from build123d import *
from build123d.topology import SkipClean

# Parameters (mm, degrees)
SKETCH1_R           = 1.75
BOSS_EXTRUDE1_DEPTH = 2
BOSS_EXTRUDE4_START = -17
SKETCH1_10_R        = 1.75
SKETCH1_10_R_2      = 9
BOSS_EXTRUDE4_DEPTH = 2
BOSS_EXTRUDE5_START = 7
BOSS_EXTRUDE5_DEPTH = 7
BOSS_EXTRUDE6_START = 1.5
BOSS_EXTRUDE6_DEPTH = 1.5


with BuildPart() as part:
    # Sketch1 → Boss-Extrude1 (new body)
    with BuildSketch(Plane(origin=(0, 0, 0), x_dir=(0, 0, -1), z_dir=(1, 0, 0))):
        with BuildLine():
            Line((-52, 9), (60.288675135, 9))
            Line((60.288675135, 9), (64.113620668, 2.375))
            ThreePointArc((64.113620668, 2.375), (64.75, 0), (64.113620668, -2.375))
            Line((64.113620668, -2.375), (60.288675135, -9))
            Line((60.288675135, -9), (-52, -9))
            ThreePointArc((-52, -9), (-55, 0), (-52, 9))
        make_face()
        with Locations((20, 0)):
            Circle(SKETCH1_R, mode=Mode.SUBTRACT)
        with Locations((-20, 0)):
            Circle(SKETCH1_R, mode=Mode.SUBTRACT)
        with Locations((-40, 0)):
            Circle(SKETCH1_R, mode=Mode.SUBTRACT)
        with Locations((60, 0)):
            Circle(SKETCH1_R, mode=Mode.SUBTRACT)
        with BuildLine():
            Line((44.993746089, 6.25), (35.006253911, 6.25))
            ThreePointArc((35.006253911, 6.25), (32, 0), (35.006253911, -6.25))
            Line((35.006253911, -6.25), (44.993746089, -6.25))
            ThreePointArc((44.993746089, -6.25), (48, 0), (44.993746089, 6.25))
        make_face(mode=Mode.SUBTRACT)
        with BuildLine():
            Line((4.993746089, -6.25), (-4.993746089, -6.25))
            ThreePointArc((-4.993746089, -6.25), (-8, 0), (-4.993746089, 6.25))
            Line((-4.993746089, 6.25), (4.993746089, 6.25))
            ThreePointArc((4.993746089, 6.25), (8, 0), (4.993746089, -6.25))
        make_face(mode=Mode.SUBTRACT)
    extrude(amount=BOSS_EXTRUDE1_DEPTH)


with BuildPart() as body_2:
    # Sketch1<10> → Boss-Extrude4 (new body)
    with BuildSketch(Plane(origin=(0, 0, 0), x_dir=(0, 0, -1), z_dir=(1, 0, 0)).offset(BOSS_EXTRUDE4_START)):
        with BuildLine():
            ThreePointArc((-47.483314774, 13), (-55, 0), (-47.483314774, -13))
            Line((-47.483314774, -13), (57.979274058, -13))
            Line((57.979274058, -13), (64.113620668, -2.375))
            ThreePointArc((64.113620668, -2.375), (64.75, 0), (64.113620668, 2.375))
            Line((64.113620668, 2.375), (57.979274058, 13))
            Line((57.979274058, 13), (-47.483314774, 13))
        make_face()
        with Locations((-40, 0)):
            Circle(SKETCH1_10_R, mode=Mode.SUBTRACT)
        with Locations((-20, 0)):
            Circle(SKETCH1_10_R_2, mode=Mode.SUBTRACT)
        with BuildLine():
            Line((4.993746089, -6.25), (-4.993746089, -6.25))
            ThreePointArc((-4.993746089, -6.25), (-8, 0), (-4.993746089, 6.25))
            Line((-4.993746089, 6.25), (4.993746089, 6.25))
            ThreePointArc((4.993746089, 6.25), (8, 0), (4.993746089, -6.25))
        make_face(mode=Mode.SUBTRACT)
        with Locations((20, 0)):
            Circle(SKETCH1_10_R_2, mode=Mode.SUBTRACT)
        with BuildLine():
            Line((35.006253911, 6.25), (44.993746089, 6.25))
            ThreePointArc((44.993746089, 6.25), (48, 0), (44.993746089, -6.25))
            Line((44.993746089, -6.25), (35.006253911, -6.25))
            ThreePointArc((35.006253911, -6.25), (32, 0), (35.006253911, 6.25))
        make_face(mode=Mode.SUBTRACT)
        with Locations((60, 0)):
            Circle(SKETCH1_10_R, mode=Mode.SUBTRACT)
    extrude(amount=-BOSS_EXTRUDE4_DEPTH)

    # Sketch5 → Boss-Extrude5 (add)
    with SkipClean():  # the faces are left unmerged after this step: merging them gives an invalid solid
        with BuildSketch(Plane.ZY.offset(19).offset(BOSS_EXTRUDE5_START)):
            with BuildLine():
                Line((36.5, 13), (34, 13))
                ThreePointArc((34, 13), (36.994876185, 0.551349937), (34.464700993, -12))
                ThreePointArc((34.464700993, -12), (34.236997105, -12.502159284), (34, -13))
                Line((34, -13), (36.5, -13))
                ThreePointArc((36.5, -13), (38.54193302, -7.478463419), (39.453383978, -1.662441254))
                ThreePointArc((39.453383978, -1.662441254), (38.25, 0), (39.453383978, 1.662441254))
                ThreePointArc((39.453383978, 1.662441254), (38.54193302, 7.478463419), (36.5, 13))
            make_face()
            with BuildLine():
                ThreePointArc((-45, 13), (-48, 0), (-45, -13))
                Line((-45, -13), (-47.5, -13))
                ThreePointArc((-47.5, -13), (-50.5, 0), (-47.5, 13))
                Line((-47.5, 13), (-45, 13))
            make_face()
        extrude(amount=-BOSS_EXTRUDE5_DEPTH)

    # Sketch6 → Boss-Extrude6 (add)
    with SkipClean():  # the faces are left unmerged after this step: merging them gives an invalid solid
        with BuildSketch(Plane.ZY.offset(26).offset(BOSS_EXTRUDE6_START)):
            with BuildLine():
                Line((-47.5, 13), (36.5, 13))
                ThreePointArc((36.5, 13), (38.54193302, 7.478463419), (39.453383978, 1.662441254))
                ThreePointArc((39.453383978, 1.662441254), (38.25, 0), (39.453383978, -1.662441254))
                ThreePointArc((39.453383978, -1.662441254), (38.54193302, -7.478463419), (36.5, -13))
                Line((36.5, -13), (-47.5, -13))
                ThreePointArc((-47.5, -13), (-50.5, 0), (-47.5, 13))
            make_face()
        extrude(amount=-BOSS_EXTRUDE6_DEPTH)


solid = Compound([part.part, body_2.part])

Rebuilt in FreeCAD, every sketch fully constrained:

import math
import FreeCAD as App
import Part
import Sketcher

V = App.Vector
Q = App.Units.Quantity

doc = App.newDocument("Part")
body = doc.addObject("PartDesign::Body", "Body")

sketch1 = body.newObject("Sketcher::SketchObject", "Sketch")
sketch1.AttachmentSupport = (doc.getObject("YZ_Plane"), [""])
sketch1.MapMode = "FlatFace"
sketch1.addGeometry([
    Part.LineSegment(V(9, -60.288675, 0), V(9, 52, 0)),
    Part.ArcOfCircle(Part.Circle(V(0, 40, 0), V(0, 0, 1), 15), math.radians(53.130102), math.radians(126.869898)),
    Part.LineSegment(V(-9, 52, 0), V(-9, -60.288675, 0)),
    Part.LineSegment(V(-9, -60.288675, 0), V(-2.375, -64.113621, 0)),
    Part.ArcOfCircle(Part.Circle(V(0, -60, 0), V(0, 0, 1), 4.75), math.radians(-120), math.radians(-60)),
    Part.LineSegment(V(2.375, -64.113621, 0), V(9, -60.288675, 0)),
    Part.Circle(V(0, -60, 0), V(0, 0, 1), 1.75),
    Part.ArcOfCircle(Part.Circle(V(0, -40, 0), V(0, 0, 1), 8), math.radians(-141.375167), math.radians(-38.624833)),
    Part.LineSegment(V(-6.25, -44.993746, 0), V(-6.25, -35.006254, 0)),
    Part.ArcOfCircle(Part.Circle(V(0, -40, 0), V(0, 0, 1), 8), math.radians(38.624833), math.radians(141.375167)),
    Part.LineSegment(V(6.25, -35.006254, 0), V(6.25, -44.993746, 0)),
    Part.Circle(V(0, -20, 0), V(0, 0, 1), 1.75),
    Part.LineSegment(V(-6.25, -4.993746, 0), V(-6.25, 4.993746, 0)),
    Part.ArcOfCircle(Part.Circle(V(0, 0, 0), V(0, 0, 1), 8), math.radians(38.624833), math.radians(141.375167)),
    Part.LineSegment(V(6.25, 4.993746, 0), V(6.25, -4.993746, 0)),
    Part.ArcOfCircle(Part.Circle(V(0, 0, 0), V(0, 0, 1), 8), math.radians(-141.375167), math.radians(-38.624833)),
    Part.Circle(V(0, 20, 0), V(0, 0, 1), 1.75),
    Part.Circle(V(0, 40, 0), V(0, 0, 1), 1.75),
], False)
sketch1.addConstraint([
    Sketcher.Constraint("Coincident", 0, 2, 1, 1),
    Sketcher.Constraint("Coincident", 1, 2, 2, 1),
    Sketcher.Constraint("Coincident", 2, 2, 3, 1),
    Sketcher.Constraint("Tangent", 3, 2, 4, 1),
    Sketcher.Constraint("Tangent", 4, 2, 5, 1),
    Sketcher.Constraint("Coincident", 5, 2, 0, 1),
    Sketcher.Constraint("Coincident", 7, 1, 8, 1),
    Sketcher.Constraint("Coincident", 8, 2, 9, 2),
    Sketcher.Constraint("Coincident", 9, 1, 10, 1),
    Sketcher.Constraint("Coincident", 10, 2, 7, 2),
    Sketcher.Constraint("Coincident", 12, 2, 13, 2),
    Sketcher.Constraint("Coincident", 13, 1, 14, 1),
    Sketcher.Constraint("Coincident", 14, 2, 15, 2),
    Sketcher.Constraint("Coincident", 15, 1, 12, 1),
    Sketcher.Constraint("Vertical", 0),
    Sketcher.Constraint("Vertical", 2),
    Sketcher.Constraint("Vertical", 8),
    Sketcher.Constraint("Vertical", 10),
    Sketcher.Constraint("Vertical", 12),
    Sketcher.Constraint("Vertical", 14),
    Sketcher.Constraint("Coincident", 13, 3, -1, 1),
    Sketcher.Constraint("Coincident", 15, 3, -1, 1),
    Sketcher.Constraint("Coincident", 6, 3, 4, 3),
    Sketcher.Constraint("Coincident", 9, 3, 7, 3),
    Sketcher.Constraint("Coincident", 17, 3, 1, 3),
    Sketcher.Constraint("Equal", 7, 9),
    Sketcher.Constraint("Equal", 6, 11),
    Sketcher.Constraint("Equal", 9, 13),
    Sketcher.Constraint("Equal", 13, 15),
    Sketcher.Constraint("Equal", 11, 16),
    Sketcher.Constraint("Equal", 16, 17),
    Sketcher.Constraint("Symmetric", 1, 3, 7, 3, -1, 1),
    Sketcher.Constraint("Symmetric", 11, 3, 16, 3, -1, 1),
    Sketcher.Constraint("Symmetric", 0, 2, 1, 2, -2),
    Sketcher.Constraint("Symmetric", 3, 2, 4, 2, -2),
    Sketcher.Constraint("PointOnObject", 11, 3, -2),
    Sketcher.Constraint("Horizontal", 8, 2, 9, 1),
    Sketcher.Constraint("Horizontal", 12, 2, 13, 1),
    Sketcher.Constraint("Vertical", 8, 2, 12, 2),
    Sketcher.Constraint("Radius", 1, Q("15 mm")),
    Sketcher.Constraint("Radius", 7, Q("8 mm")),
    Sketcher.Constraint("Diameter", 6, Q("3.5 mm")),
    Sketcher.Constraint("Angle", 3, Q("-30 deg")),
    Sketcher.Constraint("Radius", 4, Q("4.75 mm")),
    Sketcher.Constraint("DistanceY", -1, 1, 1, 3, Q("40 mm")),
    Sketcher.Constraint("DistanceY", 4, 3, -1, 1, Q("60 mm")),
    Sketcher.Constraint("DistanceY", 11, 3, -1, 1, Q("20 mm")),
    Sketcher.Constraint("DistanceX", -1, 1, 0, 2, Q("9 mm")),
    Sketcher.Constraint("DistanceX", 8, 2, 9, 1, Q("12.5 mm")),
])
pad1 = body.newObject("PartDesign::Pad", "Pad")
pad1.Profile = sketch1
pad1.Length = 2
body2 = doc.addObject("PartDesign::Body", "Body001")

sketch2 = body2.newObject("Sketcher::SketchObject", "Sketch001")
sketch2.AttachmentSupport = (doc.getObject("YZ_Plane001"), [""])
sketch2.MapMode = "FlatFace"
sketch2.AttachmentOffset = App.Placement(V(0, 0, -17), App.Rotation())
sketch2.addGeometry([
    Part.ArcOfCircle(Part.Circle(V(0, 40, 0), V(0, 0, 1), 15), math.radians(29.926435), math.radians(150.073565)),
    Part.LineSegment(V(-13, 47.483315, 0), V(-13, -57.979274, 0)),
    Part.LineSegment(V(-13, -57.979274, 0), V(-2.375, -64.113621, 0)),
    Part.ArcOfCircle(Part.Circle(V(0, -60, 0), V(0, 0, 1), 4.75), math.radians(-120), math.radians(-60)),
    Part.LineSegment(V(2.375, -64.113621, 0), V(13, -57.979274, 0)),
    Part.LineSegment(V(13, -57.979274, 0), V(13, 47.483315, 0)),
    Part.Circle(V(0, 40, 0), V(0, 0, 1), 1.75),
    Part.Circle(V(0, 20, 0), V(0, 0, 1), 9),
    Part.ArcOfCircle(Part.Circle(V(0, 0, 0), V(0, 0, 1), 8), math.radians(-141.375167), math.radians(-38.624833)),
    Part.LineSegment(V(-6.25, -4.993746, 0), V(-6.25, 4.993746, 0)),
    Part.ArcOfCircle(Part.Circle(V(0, 0, 0), V(0, 0, 1), 8), math.radians(38.624833), math.radians(141.375167)),
    Part.LineSegment(V(6.25, 4.993746, 0), V(6.25, -4.993746, 0)),
    Part.Circle(V(0, -20, 0), V(0, 0, 1), 9),
    Part.ArcOfCircle(Part.Circle(V(0, -40, 0), V(0, 0, 1), 8), math.radians(38.624833), math.radians(141.375167)),
    Part.LineSegment(V(6.25, -35.006254, 0), V(6.25, -44.993746, 0)),
    Part.ArcOfCircle(Part.Circle(V(0, -40, 0), V(0, 0, 1), 8), math.radians(-141.375167), math.radians(-38.624833)),
    Part.LineSegment(V(-6.25, -44.993746, 0), V(-6.25, -35.006254, 0)),
    Part.Circle(V(0, -60, 0), V(0, 0, 1), 1.75),
], False)
sketch2.addConstraint([
    Sketcher.Constraint("Coincident", 0, 2, 1, 1),
    Sketcher.Constraint("Coincident", 1, 2, 2, 1),
    Sketcher.Constraint("Tangent", 2, 2, 3, 1),
    Sketcher.Constraint("Tangent", 3, 2, 4, 1),
    Sketcher.Constraint("Coincident", 4, 2, 5, 1),
    Sketcher.Constraint("Coincident", 5, 2, 0, 1),
    Sketcher.Constraint("Coincident", 8, 1, 9, 1),
    Sketcher.Constraint("Coincident", 9, 2, 10, 2),
    Sketcher.Constraint("Coincident", 10, 1, 11, 1),
    Sketcher.Constraint("Coincident", 11, 2, 8, 2),
    Sketcher.Constraint("Coincident", 13, 1, 14, 1),
    Sketcher.Constraint("Coincident", 14, 2, 15, 2),
    Sketcher.Constraint("Coincident", 15, 1, 16, 1),
    Sketcher.Constraint("Coincident", 16, 2, 13, 2),
    Sketcher.Constraint("Vertical", 1),
    Sketcher.Constraint("Vertical", 5),
    Sketcher.Constraint("Vertical", 9),
    Sketcher.Constraint("Vertical", 11),
    Sketcher.Constraint("Vertical", 14),
    Sketcher.Constraint("Vertical", 16),
    Sketcher.Constraint("Coincident", 8, 3, -1, 1),
    Sketcher.Constraint("Coincident", 10, 3, -1, 1),
    Sketcher.Constraint("Coincident", 6, 3, 0, 3),
    Sketcher.Constraint("Coincident", 15, 3, 13, 3),
    Sketcher.Constraint("Coincident", 17, 3, 3, 3),
    Sketcher.Constraint("Equal", 8, 10),
    Sketcher.Constraint("Equal", 7, 12),
    Sketcher.Constraint("Equal", 10, 13),
    Sketcher.Constraint("Equal", 13, 15),
    Sketcher.Constraint("Equal", 6, 17),
    Sketcher.Constraint("Symmetric", 7, 3, 12, 3, -1, 1),
    Sketcher.Constraint("Symmetric", 0, 3, 13, 3, -1, 1),
    Sketcher.Constraint("Symmetric", 2, 2, 3, 2, -2),
    Sketcher.Constraint("Symmetric", 0, 2, 5, 2, -2),
    Sketcher.Constraint("PointOnObject", 7, 3, -2),
    Sketcher.Constraint("Horizontal", 9, 2, 10, 1),
    Sketcher.Constraint("Horizontal", 14, 2, 15, 1),
    Sketcher.Constraint("Vertical", 11, 2, 13, 1),
    Sketcher.Constraint("Diameter", 7, Q("18 mm")),
    Sketcher.Constraint("Radius", 0, Q("15 mm")),
    Sketcher.Constraint("Radius", 8, Q("8 mm")),
    Sketcher.Constraint("Diameter", 6, Q("3.5 mm")),
    Sketcher.Constraint("Angle", 2, Q("-30 deg")),
    Sketcher.Constraint("Radius", 3, Q("4.75 mm")),
    Sketcher.Constraint("DistanceY", -1, 1, 0, 3, Q("40 mm")),
    Sketcher.Constraint("DistanceY", 3, 3, -1, 1, Q("60 mm")),
    Sketcher.Constraint("DistanceY", -1, 1, 7, 3, Q("20 mm")),
    Sketcher.Constraint("DistanceX", 0, 2, -1, 1, Q("13 mm")),
    Sketcher.Constraint("DistanceX", 9, 2, 10, 1, Q("12.5 mm")),
])
pad2 = body2.newObject("PartDesign::Pad", "Pad001")
pad2.Profile = sketch2
pad2.Length = 2
pad2.Reversed = True

sketch3 = body2.newObject("Sketcher::SketchObject", "Sketch002")
sketch3.AttachmentSupport = (doc.getObject("YZ_Plane001"), [""])
sketch3.MapMode = "FlatFace"
sketch3.AttachmentOffset = App.Placement(V(0, 0, -26), App.Rotation())
sketch3.addGeometry([
    Part.LineSegment(V(13, 36.5, 0), V(13, 34, 0)),
    Part.ArcOfCircle(Part.Circle(V(0, 7.333333, 0), V(0, 0, 1), 29.666667), math.radians(64.010766), math.radians(113.859446)),
    Part.ArcOfCircle(Part.Circle(V(0, 7.333334, 0), V(0, 0, 1), 29.666666), math.radians(113.859446), math.radians(115.989234)),
    Part.LineSegment(V(-13, 34, 0), V(-13, 36.5, 0)),
    Part.ArcOfCircle(Part.Circle(V(0, 9.833333, 0), V(0, 0, 1), 29.666667), math.radians(93.212386), math.radians(115.989234)),
    Part.ArcOfCircle(Part.Circle(V(0, 40, 0), V(0, 0, 1), 1.75), math.radians(-161.798969), math.radians(-18.201031)),
    Part.ArcOfCircle(Part.Circle(V(0, 9.833333, 0), V(0, 0, 1), 29.666667), math.radians(64.010766), math.radians(86.787614)),
    Part.ArcOfCircle(Part.Circle(V(0, -18.333333, 0), V(0, 0, 1), 29.666667), math.radians(-115.989234), math.radians(-64.010766)),
    Part.LineSegment(V(13, -45, 0), V(13, -47.5, 0)),
    Part.ArcOfCircle(Part.Circle(V(0, -20.833333, 0), V(0, 0, 1), 29.666667), math.radians(-115.989234), math.radians(-64.010766)),
    Part.LineSegment(V(-13, -47.5, 0), V(-13, -45, 0)),
], False)
sketch3.addConstraint([
    Sketcher.Constraint("Coincident", 0, 2, 1, 1),
    Sketcher.Constraint("Tangent", 1, 2, 2, 1),
    Sketcher.Constraint("Coincident", 2, 2, 3, 1),
    Sketcher.Constraint("Coincident", 3, 2, 4, 2),
    Sketcher.Constraint("Coincident", 4, 1, 5, 1),
    Sketcher.Constraint("Coincident", 5, 2, 6, 2),
    Sketcher.Constraint("Coincident", 6, 1, 0, 1),
    Sketcher.Constraint("Coincident", 7, 2, 8, 1),
    Sketcher.Constraint("Coincident", 8, 2, 9, 2),
    Sketcher.Constraint("Coincident", 9, 1, 10, 1),
    Sketcher.Constraint("Coincident", 10, 2, 7, 1),
    Sketcher.Constraint("Vertical", 0),
    Sketcher.Constraint("Vertical", 3),
    Sketcher.Constraint("Vertical", 8),
    Sketcher.Constraint("Vertical", 10),
    Sketcher.Constraint("Coincident", 6, 3, 4, 3),
    Sketcher.Constraint("Equal", 1, 2),
    Sketcher.Constraint("Equal", 2, 4),
    Sketcher.Constraint("Equal", 4, 6),
    Sketcher.Constraint("Equal", 6, 7),
    Sketcher.Constraint("Equal", 7, 9),
    Sketcher.Constraint("Symmetric", 0, 2, 2, 2, -2),
    Sketcher.Constraint("Symmetric", 4, 1, 5, 2, -2),
    Sketcher.Constraint("Symmetric", 8, 2, 9, 1, -2),
    Sketcher.Constraint("PointOnObject", 7, 3, -2),
    Sketcher.Constraint("Vertical", 6, 1, 7, 2),
    Sketcher.Constraint("Equal", 3, 8),
    Sketcher.Constraint("Radius", 5, Q("1.75 mm")),
    Sketcher.Constraint("DistanceY", 0, 2, 0, 1, Q("2.5 mm")),
    Sketcher.Constraint("DistanceY", -1, 1, 5, 3, Q("40 mm")),
    Sketcher.Constraint("DistanceX", -1, 1, 0, 2, Q("13 mm")),
    Sketcher.Constraint("DistanceY", -1, 1, 0, 2, Q("34 mm")),
    Sketcher.Constraint("DistanceX", 1, 2, -1, 1, Q("12 mm")),
    Sketcher.Constraint("DistanceY", 7, 2, -1, 1, Q("45 mm")),
    Sketcher.Constraint("Radius", 1, Q("29.666667 mm")),
])
pad3 = body2.newObject("PartDesign::Pad", "Pad002")
pad3.Profile = sketch3
pad3.Length = 7

sketch4 = body2.newObject("Sketcher::SketchObject", "Sketch003")
sketch4.AttachmentSupport = (doc.getObject("YZ_Plane001"), [""])
sketch4.MapMode = "FlatFace"
sketch4.AttachmentOffset = App.Placement(V(0, 0, -27.5), App.Rotation())
sketch4.addGeometry([
    Part.LineSegment(V(13, 36.5, 0), V(13, -47.5, 0)),
    Part.ArcOfCircle(Part.Circle(V(0, -20.833333, 0), V(0, 0, 1), 29.666667), math.radians(-115.989234), math.radians(-64.010766)),
    Part.LineSegment(V(-13, -47.5, 0), V(-13, 36.5, 0)),
    Part.ArcOfCircle(Part.Circle(V(0, 9.833333, 0), V(0, 0, 1), 29.666667), math.radians(93.212386), math.radians(115.989234)),
    Part.ArcOfCircle(Part.Circle(V(0, 40, 0), V(0, 0, 1), 1.75), math.radians(-161.798969), math.radians(-18.201031)),
    Part.ArcOfCircle(Part.Circle(V(0, 9.833333, 0), V(0, 0, 1), 29.666667), math.radians(64.010766), math.radians(86.787614)),
], False)
sketch4.addConstraint([
    Sketcher.Constraint("Coincident", 0, 2, 1, 2),
    Sketcher.Constraint("Coincident", 1, 1, 2, 1),
    Sketcher.Constraint("Coincident", 2, 2, 3, 2),
    Sketcher.Constraint("Coincident", 3, 1, 4, 1),
    Sketcher.Constraint("Coincident", 4, 2, 5, 2),
    Sketcher.Constraint("Coincident", 5, 1, 0, 1),
    Sketcher.Constraint("Vertical", 0),
    Sketcher.Constraint("Vertical", 2),
    Sketcher.Constraint("Coincident", 5, 3, 3, 3),
    Sketcher.Constraint("Equal", 1, 3),
    Sketcher.Constraint("Equal", 3, 5),
    Sketcher.Constraint("Symmetric", 0, 2, 1, 1, -2),
    Sketcher.Constraint("Symmetric", 3, 1, 4, 2, -2),
    Sketcher.Constraint("DistanceY", 0, 2, 0, 1, Q("84 mm")),
    Sketcher.Constraint("Radius", 4, Q("1.75 mm")),
    Sketcher.Constraint("DistanceY", -1, 1, 4, 3, Q("40 mm")),
    Sketcher.Constraint("DistanceX", -1, 1, 0, 2, Q("13 mm")),
    Sketcher.Constraint("DistanceY", 0, 2, -1, 1, Q("47.5 mm")),
    Sketcher.Constraint("Radius", 1, Q("29.666667 mm")),
])
pad4 = body2.newObject("PartDesign::Pad", "Pad003")
pad4.Profile = sketch4
pad4.Length = 1.5

doc.recompute()
